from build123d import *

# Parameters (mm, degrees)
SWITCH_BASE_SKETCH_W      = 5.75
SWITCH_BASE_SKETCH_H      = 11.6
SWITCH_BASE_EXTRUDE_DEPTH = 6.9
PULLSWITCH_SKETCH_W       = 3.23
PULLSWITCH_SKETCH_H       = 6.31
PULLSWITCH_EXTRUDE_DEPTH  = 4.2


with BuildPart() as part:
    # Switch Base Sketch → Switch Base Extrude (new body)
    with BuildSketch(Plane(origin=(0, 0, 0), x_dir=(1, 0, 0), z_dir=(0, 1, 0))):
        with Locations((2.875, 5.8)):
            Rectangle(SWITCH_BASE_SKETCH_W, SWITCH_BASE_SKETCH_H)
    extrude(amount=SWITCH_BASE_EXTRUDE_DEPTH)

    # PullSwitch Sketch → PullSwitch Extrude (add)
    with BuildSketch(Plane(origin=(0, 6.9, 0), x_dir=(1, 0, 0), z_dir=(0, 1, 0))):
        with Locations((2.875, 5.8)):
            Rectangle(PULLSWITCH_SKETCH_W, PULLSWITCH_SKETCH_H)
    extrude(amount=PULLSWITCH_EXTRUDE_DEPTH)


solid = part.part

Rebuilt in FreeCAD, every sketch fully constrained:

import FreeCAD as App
import Part
import Sketcher


def add_polygon(sketch, points):
    """Adds a closed chain of lines whose ends are joined by coincident constraints."""
    first, n = sketch.GeometryCount, len(points)
    for a, b in zip(points, points[1:] + points[:1]):
        sketch.addGeometry(Part.LineSegment(App.Vector(*a, 0), App.Vector(*b, 0)), False)
    for i in range(n):
        sketch.addConstraint(Sketcher.Constraint("Coincident", first + i, 2, first + (i + 1) % n, 1))

doc = App.newDocument("Part")
body = doc.addObject("PartDesign::Body", "Body")

sketch1 = doc.addObject("Sketcher::SketchObject", "Sketch")
body.addObject(sketch1)
sketch1.AttachmentSupport = (doc.XZ_Plane, [""])
sketch1.MapMode = "FlatFace"
add_polygon(sketch1, [(0, -12), (0, 0), (6, 0), (6, -12)])
sketch1.addConstraint(Sketcher.Constraint("Vertical", 0))
sketch1.addConstraint(Sketcher.Constraint("Horizontal", 1))
sketch1.addConstraint(Sketcher.Constraint("Vertical", 2))
sketch1.addConstraint(Sketcher.Constraint("Horizontal", 3))
sketch1.addConstraint(Sketcher.Constraint("Coincident", 0, 2, -1, 1))
sketch1.addConstraint(Sketcher.Constraint("DistanceY", 0, 1, 0, 2, 11.6))
sketch1.addConstraint(Sketcher.Constraint("DistanceX", 1, 1, 1, 2, 5.75))
pad1 = doc.addObject("PartDesign::Pad", "Pad")
body.addObject(pad1)
pad1.Profile = sketch1
pad1.Length = 6.9
pad1.Reversed = True

sketch2 = doc.addObject("Sketcher::SketchObject", "Sketch001")
body.addObject(sketch2)
sketch2.AttachmentSupport = (doc.XZ_Plane, [""])
sketch2.MapMode = "FlatFace"
sketch2.AttachmentOffset = App.Placement(App.Vector(0, 0, -6.9), App.Rotation())
add_polygon(sketch2, [(1.3, -9), (1.3, -2.6), (4.5, -2.6), (4.5, -9)])
sketch2.addConstraint(Sketcher.Constraint("Vertical", 0))
sketch2.addConstraint(Sketcher.Constraint("Horizontal", 1))
sketch2.addConstraint(Sketcher.Constraint("Vertical", 2))
sketch2.addConstraint(Sketcher.Constraint("Horizontal", 3))
sketch2.addConstraint(Sketcher.Constraint("DistanceX", 1, 1, 1, 2, 3.23))
sketch2.addConstraint(Sketcher.Constraint("DistanceY", 0, 1, 0, 2, 6.31))
sketch2.addConstraint(Sketcher.Constraint("DistanceX", -1, 1, 0, 2, 1.26))
sketch2.addConstraint(Sketcher.Constraint("DistanceY", 0, 2, -1, 1, 2.645))
pad2 = doc.addObject("PartDesign::Pad", "Pad001")
body.addObject(pad2)
pad2.Profile = sketch2
pad2.Length = 4.2
pad2.Reversed = True

doc.recompute()
